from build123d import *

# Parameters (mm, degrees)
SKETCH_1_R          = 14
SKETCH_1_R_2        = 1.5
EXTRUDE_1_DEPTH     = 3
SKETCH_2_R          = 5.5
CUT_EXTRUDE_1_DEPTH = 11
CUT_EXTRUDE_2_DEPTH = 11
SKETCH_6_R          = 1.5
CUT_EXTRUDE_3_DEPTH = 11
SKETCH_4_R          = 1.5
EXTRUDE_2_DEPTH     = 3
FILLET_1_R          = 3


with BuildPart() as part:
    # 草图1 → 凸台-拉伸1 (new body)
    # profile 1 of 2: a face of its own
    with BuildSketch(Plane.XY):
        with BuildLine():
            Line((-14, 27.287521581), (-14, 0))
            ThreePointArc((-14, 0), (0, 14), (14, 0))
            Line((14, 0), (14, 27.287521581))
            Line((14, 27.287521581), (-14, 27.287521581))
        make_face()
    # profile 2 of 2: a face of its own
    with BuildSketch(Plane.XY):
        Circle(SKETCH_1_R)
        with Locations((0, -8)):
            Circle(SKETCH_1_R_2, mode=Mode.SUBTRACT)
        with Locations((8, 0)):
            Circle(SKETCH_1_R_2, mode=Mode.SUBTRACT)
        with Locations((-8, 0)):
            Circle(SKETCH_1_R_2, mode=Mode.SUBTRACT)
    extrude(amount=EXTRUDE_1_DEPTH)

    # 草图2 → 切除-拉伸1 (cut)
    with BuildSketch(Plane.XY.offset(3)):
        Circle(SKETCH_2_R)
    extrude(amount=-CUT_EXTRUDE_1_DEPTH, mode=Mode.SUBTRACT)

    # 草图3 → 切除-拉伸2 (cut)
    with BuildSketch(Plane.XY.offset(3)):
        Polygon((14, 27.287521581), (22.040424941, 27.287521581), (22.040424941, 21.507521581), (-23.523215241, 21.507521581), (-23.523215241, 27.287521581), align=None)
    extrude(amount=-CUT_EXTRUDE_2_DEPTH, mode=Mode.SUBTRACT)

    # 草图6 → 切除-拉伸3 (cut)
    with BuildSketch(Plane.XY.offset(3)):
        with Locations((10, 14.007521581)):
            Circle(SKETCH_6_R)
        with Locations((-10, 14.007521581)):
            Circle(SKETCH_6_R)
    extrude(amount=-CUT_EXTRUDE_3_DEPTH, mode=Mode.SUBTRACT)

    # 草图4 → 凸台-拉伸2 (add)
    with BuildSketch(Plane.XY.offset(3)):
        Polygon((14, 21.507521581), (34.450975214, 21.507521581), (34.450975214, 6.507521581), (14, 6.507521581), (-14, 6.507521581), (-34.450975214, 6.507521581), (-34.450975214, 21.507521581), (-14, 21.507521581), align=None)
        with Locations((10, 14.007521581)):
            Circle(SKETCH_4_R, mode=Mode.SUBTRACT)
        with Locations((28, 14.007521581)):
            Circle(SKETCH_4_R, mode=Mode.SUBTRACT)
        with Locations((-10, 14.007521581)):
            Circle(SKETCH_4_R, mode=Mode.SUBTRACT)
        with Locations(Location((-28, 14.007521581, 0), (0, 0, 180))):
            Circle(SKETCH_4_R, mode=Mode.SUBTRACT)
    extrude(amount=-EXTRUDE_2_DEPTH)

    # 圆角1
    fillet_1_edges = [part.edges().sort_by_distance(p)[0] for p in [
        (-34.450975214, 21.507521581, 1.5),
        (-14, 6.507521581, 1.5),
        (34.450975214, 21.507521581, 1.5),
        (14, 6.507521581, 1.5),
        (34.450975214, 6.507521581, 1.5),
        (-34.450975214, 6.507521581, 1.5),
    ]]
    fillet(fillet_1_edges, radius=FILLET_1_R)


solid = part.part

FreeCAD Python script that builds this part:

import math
import FreeCAD as App
import Part
import Sketcher

V = App.Vector


def edges_at(feature, points):
    """Names of the edges that pass closest to the given points."""
    edges = feature.Shape.Edges
    near = lambda p: min(range(len(edges)), key=lambda i: edges[i].distToShape(Part.Vertex(*p))[0])
    return sorted({f"Edge{near(p) + 1}" for p in points})

doc = App.newDocument("Part")
params = doc.addObject("Spreadsheet::Sheet", "Params")
for row, (alias, value) in enumerate([
    ("sketch1_diameter", "3 mm"),
    ("sketch1_radius", "14 mm"),
    ("pad1_length", "3 mm"),
    ("sketch2_diameter", "11 mm"),
    ("pocket1_length", "11 mm"),
    ("sketch3_height", "5.78 mm"),
    ("pocket2_length", "11 mm"),
    ("sketch4_diameter", "3 mm"),
    ("pocket3_length", "11 mm"),
    ("sketch5_diameter", "3 mm"),
    ("sketch5_height", "15 mm"),
    ("pad2_length", "3 mm"),
    ("fillet_radius", "3 mm"),
], start=1):
    params.set(f"A{row}", alias)
    params.set(f"B{row}", "=" + value)
    params.setAlias(f"B{row}", alias)

body = doc.addObject("PartDesign::Body", "Body")

sketch1 = body.newObject("Sketcher::SketchObject", "Sketch")
sketch1.AttachmentSupport = (doc.getObject("XY_Plane"), [""])
sketch1.MapMode = "FlatFace"
sketch1.addGeometry(Part.LineSegment(V(-14, 27.287522, 0), V(-14, 0, 0)), False)
sketch1.addGeometry(Part.ArcOfCircle(Part.Circle(V(0, 0, 0), V(0, 0, 1), 14), math.radians(180), math.radians(360)), False)
sketch1.addGeometry(Part.LineSegment(V(14, 0, 0), V(14, 27.287522, 0)), False)
sketch1.addGeometry(Part.LineSegment(V(14, 27.287522, 0), V(-14, 27.287522, 0)), False)
sketch1.addGeometry(Part.Circle(V(8, 0, 0), V(0, 0, 1), 1.5), False)
sketch1.addGeometry(Part.Circle(V(0, -8, 0), V(0, 0, 1), 1.5), False)
sketch1.addGeometry(Part.Circle(V(-8, 0, 0), V(0, 0, 1), 1.5), False)
sketch1.addConstraint(Sketcher.Constraint("Tangent", 0, 2, 1, 1))
sketch1.addConstraint(Sketcher.Constraint("Tangent", 1, 2, 2, 1))
sketch1.addConstraint(Sketcher.Constraint("Coincident", 2, 2, 3, 1))
sketch1.addConstraint(Sketcher.Constraint("Coincident", 3, 2, 0, 1))
sketch1.addConstraint(Sketcher.Constraint("Vertical", 0))
sketch1.addConstraint(Sketcher.Constraint("Vertical", 2))
sketch1.addConstraint(Sketcher.Constraint("Horizontal", 3))
sketch1.addConstraint(Sketcher.Constraint("Coincident", 1, 3, -1, 1))
sketch1.addConstraint(Sketcher.Constraint("Equal", 4, 5))
sketch1.addConstraint(Sketcher.Constraint("Equal", 5, 6))
sketch1.addConstraint(Sketcher.Constraint("Symmetric", 4, 3, 6, 3, -1, 1))
sketch1.addConstraint(Sketcher.Constraint("PointOnObject", 4, 3, -1))
sketch1.addConstraint(Sketcher.Constraint("PointOnObject", 5, 3, -2))
sketch1.addConstraint(Sketcher.Constraint("Diameter", 4, 3.0))
sketch1.addConstraint(Sketcher.Constraint("Radius", 1, 14.0))
sketch1.addConstraint(Sketcher.Constraint("DistanceX", -1, 1, 4, 3, 8.0))
sketch1.addConstraint(Sketcher.Constraint("DistanceY", 5, 3, -1, 1, 8.0))
sketch1.addConstraint(Sketcher.Constraint("DistanceY", 0, 2, 0, 1, 27.287522))
sketch1.setExpression("Constraints[13]", "Params.sketch1_diameter")
sketch1.setExpression("Constraints[14]", "Params.sketch1_radius")
pad1 = body.newObject("PartDesign::Pad", "Pad")
pad1.Profile = sketch1
pad1.setExpression("Length", "Params.pad1_length")

sketch2 = body.newObject("Sketcher::SketchObject", "Sketch001")
sketch2.AttachmentSupport = (doc.getObject("XY_Plane"), [""])
sketch2.MapMode = "FlatFace"
sketch2.AttachmentOffset = App.Placement(V(0, 0, 3), App.Rotation())
sketch2.addGeometry(Part.Circle(V(0, 0, 0), V(0, 0, 1), 5.5), False)
sketch2.addConstraint(Sketcher.Constraint("Coincident", 0, 3, -1, 1))
sketch2.addConstraint(Sketcher.Constraint("Diameter", 0, 11.0))
sketch2.setExpression("Constraints[1]", "Params.sketch2_diameter")
pocket1 = body.newObject("PartDesign::Pocket", "Pocket")
pocket1.Profile = sketch2
pocket1.setExpression("Length", "Params.pocket1_length")

sketch3 = body.newObject("Sketcher::SketchObject", "Sketch002")
sketch3.AttachmentSupport = (doc.getObject("XY_Plane"), [""])
sketch3.MapMode = "FlatFace"
sketch3.AttachmentOffset = App.Placement(V(0, 0, 3), App.Rotation())
sketch3.addGeometry(Part.LineSegment(V(22.040425, 27.287522, 0), V(-23.523215, 27.287522, 0)), False)
sketch3.addGeometry(Part.LineSegment(V(-23.523215, 27.287522, 0), V(-23.523215, 21.507522, 0)), False)
sketch3.addGeometry(Part.LineSegment(V(-23.523215, 21.507522, 0), V(22.040425, 21.507522, 0)), False)
sketch3.addGeometry(Part.LineSegment(V(22.040425, 21.507522, 0), V(22.040425, 27.287522, 0)), False)
sketch3.addConstraint(Sketcher.Constraint("Coincident", 0, 2, 1, 1))
sketch3.addConstraint(Sketcher.Constraint("Coincident", 1, 2, 2, 1))
sketch3.addConstraint(Sketcher.Constraint("Coincident", 2, 2, 3, 1))
sketch3.addConstraint(Sketcher.Constraint("Coincident", 3, 2, 0, 1))
sketch3.addConstraint(Sketcher.Constraint("Horizontal", 0))
sketch3.addConstraint(Sketcher.Constraint("Vertical", 1))
sketch3.addConstraint(Sketcher.Constraint("Horizontal", 2))
sketch3.addConstraint(Sketcher.Constraint("Vertical", 3))
sketch3.addConstraint(Sketcher.Constraint("DistanceY", 1, 2, 1, 1, 5.78))
sketch3.addConstraint(Sketcher.Constraint("DistanceX", 0, 2, 0, 1, 45.56364))
sketch3.addConstraint(Sketcher.Constraint("DistanceY", -1, 1, 0, 2, 27.287522))
sketch3.addConstraint(Sketcher.Constraint("DistanceX", 0, 2, -1, 1, 23.523215))
sketch3.setExpression("Constraints[8]", "Params.sketch3_height")
pocket2 = body.newObject("PartDesign::Pocket", "Pocket001")
pocket2.Profile = sketch3
pocket2.setExpression("Length", "Params.pocket2_length")

sketch4 = body.newObject("Sketcher::SketchObject", "Sketch003")
sketch4.AttachmentSupport = (doc.getObject("XY_Plane"), [""])
sketch4.MapMode = "FlatFace"
sketch4.AttachmentOffset = App.Placement(V(0, 0, 3), App.Rotation())
sketch4.addGeometry(Part.Circle(V(10, 14.007522, 0), V(0, 0, 1), 1.5), False)
sketch4.addGeometry(Part.Circle(V(-10, 14.007522, 0), V(0, 0, 1), 1.5), False)
sketch4.addConstraint(Sketcher.Constraint("Equal", 0, 1))
sketch4.addConstraint(Sketcher.Constraint("Symmetric", 0, 3, 1, 3, -2))
sketch4.addConstraint(Sketcher.Constraint("Diameter", 0, 3.0))
sketch4.addConstraint(Sketcher.Constraint("DistanceX", -1, 1, 0, 3, 10.0))
sketch4.addConstraint(Sketcher.Constraint("DistanceY", -1, 1, 0, 3, 14.007522))
sketch4.setExpression("Constraints[2]", "Params.sketch4_diameter")
pocket3 = body.newObject("PartDesign::Pocket", "Pocket002")
pocket3.Profile = sketch4
pocket3.setExpression("Length", "Params.pocket3_length")

sketch5 = body.newObject("Sketcher::SketchObject", "Sketch004")
sketch5.AttachmentSupport = (doc.getObject("XY_Plane"), [""])
sketch5.MapMode = "FlatFace"
sketch5.AttachmentOffset = App.Placement(V(0, 0, 3), App.Rotation())
sketch5.addGeometry(Part.LineSegment(V(34.450975, 21.507522, 0), V(-34.450975, 21.507522, 0)), False)
sketch5.addGeometry(Part.LineSegment(V(-34.450975, 21.507522, 0), V(-34.450975, 6.507522, 0)), False)
sketch5.addGeometry(Part.LineSegment(V(-34.450975, 6.507522, 0), V(34.450975, 6.507522, 0)), False)
sketch5.addGeometry(Part.LineSegment(V(34.450975, 6.507522, 0), V(34.450975, 21.507522, 0)), False)
sketch5.addGeometry(Part.Circle(V(28, 14.007522, 0), V(0, 0, 1), 1.5), False)
sketch5.addGeometry(Part.Circle(V(10, 14.007522, 0), V(0, 0, 1), 1.5), False)
sketch5.addGeometry(Part.Circle(V(-10, 14.007522, 0), V(0, 0, 1), 1.5), False)
sketch5.addGeometry(Part.Circle(V(-28, 14.007522, 0), V(0, 0, 1), 1.5), False)
sketch5.addConstraint(Sketcher.Constraint("Coincident", 0, 2, 1, 1))
sketch5.addConstraint(Sketcher.Constraint("Coincident", 1, 2, 2, 1))
sketch5.addConstraint(Sketcher.Constraint("Coincident", 2, 2, 3, 1))
sketch5.addConstraint(Sketcher.Constraint("Coincident", 3, 2, 0, 1))
sketch5.addConstraint(Sketcher.Constraint("Horizontal", 0))
sketch5.addConstraint(Sketcher.Constraint("Vertical", 1))
sketch5.addConstraint(Sketcher.Constraint("Horizontal", 2))
sketch5.addConstraint(Sketcher.Constraint("Vertical", 3))
sketch5.addConstraint(Sketcher.Constraint("Equal", 4, 5))
sketch5.addConstraint(Sketcher.Constraint("Equal", 5, 6))
sketch5.addConstraint(Sketcher.Constraint("Equal", 6, 7))
sketch5.addConstraint(Sketcher.Constraint("Symmetric", 5, 3, 6, 3, -2))
sketch5.addConstraint(Sketcher.Constraint("Symmetric", 4, 3, 7, 3, -2))
sketch5.addConstraint(Sketcher.Constraint("Horizontal", 4, 3, 5, 3))
sketch5.addConstraint(Sketcher.Constraint("Diameter", 4, 3.0))
sketch5.addConstraint(Sketcher.Constraint("DistanceY", 1, 2, 1, 1, 15.0))
sketch5.addConstraint(Sketcher.Constraint("DistanceX", -1, 1, 4, 3, 28.0))
sketch5.addConstraint(Sketcher.Constraint("DistanceX", -1, 1, 5, 3, 10.0))
sketch5.addConstraint(Sketcher.Constraint("DistanceY", 7, 3, 0, 2, 7.5))
sketch5.addConstraint(Sketcher.Constraint("DistanceX", 0, 2, 0, 1, 68.90195))
sketch5.addConstraint(Sketcher.Constraint("DistanceY", -1, 1, 4, 3, 14.007522))
sketch5.addConstraint(Sketcher.Constraint("DistanceX", 0, 2, -1, 1, 34.450975))
sketch5.setExpression("Constraints[14]", "Params.sketch5_diameter")
sketch5.setExpression("Constraints[15]", "Params.sketch5_height")
pad2 = body.newObject("PartDesign::Pad", "Pad001")
pad2.Profile = sketch5
pad2.setExpression("Length", "Params.pad2_length")
pad2.Reversed = True
doc.recompute()

fillet = body.newObject("PartDesign::Fillet", "Fillet")
fillet.Base = (pad2, edges_at(pad2, [
    (-34.451, 21.508, 1.5),
    (-14, 6.508, 1.5),
    (34.451, 21.508, 1.5),
    (14, 6.508, 1.5),
    (34.451, 6.508, 1.5),
    (-34.451, 6.508, 1.5),
]))
fillet.setExpression("Radius", "Params.fillet_radius")

doc.recompute()
